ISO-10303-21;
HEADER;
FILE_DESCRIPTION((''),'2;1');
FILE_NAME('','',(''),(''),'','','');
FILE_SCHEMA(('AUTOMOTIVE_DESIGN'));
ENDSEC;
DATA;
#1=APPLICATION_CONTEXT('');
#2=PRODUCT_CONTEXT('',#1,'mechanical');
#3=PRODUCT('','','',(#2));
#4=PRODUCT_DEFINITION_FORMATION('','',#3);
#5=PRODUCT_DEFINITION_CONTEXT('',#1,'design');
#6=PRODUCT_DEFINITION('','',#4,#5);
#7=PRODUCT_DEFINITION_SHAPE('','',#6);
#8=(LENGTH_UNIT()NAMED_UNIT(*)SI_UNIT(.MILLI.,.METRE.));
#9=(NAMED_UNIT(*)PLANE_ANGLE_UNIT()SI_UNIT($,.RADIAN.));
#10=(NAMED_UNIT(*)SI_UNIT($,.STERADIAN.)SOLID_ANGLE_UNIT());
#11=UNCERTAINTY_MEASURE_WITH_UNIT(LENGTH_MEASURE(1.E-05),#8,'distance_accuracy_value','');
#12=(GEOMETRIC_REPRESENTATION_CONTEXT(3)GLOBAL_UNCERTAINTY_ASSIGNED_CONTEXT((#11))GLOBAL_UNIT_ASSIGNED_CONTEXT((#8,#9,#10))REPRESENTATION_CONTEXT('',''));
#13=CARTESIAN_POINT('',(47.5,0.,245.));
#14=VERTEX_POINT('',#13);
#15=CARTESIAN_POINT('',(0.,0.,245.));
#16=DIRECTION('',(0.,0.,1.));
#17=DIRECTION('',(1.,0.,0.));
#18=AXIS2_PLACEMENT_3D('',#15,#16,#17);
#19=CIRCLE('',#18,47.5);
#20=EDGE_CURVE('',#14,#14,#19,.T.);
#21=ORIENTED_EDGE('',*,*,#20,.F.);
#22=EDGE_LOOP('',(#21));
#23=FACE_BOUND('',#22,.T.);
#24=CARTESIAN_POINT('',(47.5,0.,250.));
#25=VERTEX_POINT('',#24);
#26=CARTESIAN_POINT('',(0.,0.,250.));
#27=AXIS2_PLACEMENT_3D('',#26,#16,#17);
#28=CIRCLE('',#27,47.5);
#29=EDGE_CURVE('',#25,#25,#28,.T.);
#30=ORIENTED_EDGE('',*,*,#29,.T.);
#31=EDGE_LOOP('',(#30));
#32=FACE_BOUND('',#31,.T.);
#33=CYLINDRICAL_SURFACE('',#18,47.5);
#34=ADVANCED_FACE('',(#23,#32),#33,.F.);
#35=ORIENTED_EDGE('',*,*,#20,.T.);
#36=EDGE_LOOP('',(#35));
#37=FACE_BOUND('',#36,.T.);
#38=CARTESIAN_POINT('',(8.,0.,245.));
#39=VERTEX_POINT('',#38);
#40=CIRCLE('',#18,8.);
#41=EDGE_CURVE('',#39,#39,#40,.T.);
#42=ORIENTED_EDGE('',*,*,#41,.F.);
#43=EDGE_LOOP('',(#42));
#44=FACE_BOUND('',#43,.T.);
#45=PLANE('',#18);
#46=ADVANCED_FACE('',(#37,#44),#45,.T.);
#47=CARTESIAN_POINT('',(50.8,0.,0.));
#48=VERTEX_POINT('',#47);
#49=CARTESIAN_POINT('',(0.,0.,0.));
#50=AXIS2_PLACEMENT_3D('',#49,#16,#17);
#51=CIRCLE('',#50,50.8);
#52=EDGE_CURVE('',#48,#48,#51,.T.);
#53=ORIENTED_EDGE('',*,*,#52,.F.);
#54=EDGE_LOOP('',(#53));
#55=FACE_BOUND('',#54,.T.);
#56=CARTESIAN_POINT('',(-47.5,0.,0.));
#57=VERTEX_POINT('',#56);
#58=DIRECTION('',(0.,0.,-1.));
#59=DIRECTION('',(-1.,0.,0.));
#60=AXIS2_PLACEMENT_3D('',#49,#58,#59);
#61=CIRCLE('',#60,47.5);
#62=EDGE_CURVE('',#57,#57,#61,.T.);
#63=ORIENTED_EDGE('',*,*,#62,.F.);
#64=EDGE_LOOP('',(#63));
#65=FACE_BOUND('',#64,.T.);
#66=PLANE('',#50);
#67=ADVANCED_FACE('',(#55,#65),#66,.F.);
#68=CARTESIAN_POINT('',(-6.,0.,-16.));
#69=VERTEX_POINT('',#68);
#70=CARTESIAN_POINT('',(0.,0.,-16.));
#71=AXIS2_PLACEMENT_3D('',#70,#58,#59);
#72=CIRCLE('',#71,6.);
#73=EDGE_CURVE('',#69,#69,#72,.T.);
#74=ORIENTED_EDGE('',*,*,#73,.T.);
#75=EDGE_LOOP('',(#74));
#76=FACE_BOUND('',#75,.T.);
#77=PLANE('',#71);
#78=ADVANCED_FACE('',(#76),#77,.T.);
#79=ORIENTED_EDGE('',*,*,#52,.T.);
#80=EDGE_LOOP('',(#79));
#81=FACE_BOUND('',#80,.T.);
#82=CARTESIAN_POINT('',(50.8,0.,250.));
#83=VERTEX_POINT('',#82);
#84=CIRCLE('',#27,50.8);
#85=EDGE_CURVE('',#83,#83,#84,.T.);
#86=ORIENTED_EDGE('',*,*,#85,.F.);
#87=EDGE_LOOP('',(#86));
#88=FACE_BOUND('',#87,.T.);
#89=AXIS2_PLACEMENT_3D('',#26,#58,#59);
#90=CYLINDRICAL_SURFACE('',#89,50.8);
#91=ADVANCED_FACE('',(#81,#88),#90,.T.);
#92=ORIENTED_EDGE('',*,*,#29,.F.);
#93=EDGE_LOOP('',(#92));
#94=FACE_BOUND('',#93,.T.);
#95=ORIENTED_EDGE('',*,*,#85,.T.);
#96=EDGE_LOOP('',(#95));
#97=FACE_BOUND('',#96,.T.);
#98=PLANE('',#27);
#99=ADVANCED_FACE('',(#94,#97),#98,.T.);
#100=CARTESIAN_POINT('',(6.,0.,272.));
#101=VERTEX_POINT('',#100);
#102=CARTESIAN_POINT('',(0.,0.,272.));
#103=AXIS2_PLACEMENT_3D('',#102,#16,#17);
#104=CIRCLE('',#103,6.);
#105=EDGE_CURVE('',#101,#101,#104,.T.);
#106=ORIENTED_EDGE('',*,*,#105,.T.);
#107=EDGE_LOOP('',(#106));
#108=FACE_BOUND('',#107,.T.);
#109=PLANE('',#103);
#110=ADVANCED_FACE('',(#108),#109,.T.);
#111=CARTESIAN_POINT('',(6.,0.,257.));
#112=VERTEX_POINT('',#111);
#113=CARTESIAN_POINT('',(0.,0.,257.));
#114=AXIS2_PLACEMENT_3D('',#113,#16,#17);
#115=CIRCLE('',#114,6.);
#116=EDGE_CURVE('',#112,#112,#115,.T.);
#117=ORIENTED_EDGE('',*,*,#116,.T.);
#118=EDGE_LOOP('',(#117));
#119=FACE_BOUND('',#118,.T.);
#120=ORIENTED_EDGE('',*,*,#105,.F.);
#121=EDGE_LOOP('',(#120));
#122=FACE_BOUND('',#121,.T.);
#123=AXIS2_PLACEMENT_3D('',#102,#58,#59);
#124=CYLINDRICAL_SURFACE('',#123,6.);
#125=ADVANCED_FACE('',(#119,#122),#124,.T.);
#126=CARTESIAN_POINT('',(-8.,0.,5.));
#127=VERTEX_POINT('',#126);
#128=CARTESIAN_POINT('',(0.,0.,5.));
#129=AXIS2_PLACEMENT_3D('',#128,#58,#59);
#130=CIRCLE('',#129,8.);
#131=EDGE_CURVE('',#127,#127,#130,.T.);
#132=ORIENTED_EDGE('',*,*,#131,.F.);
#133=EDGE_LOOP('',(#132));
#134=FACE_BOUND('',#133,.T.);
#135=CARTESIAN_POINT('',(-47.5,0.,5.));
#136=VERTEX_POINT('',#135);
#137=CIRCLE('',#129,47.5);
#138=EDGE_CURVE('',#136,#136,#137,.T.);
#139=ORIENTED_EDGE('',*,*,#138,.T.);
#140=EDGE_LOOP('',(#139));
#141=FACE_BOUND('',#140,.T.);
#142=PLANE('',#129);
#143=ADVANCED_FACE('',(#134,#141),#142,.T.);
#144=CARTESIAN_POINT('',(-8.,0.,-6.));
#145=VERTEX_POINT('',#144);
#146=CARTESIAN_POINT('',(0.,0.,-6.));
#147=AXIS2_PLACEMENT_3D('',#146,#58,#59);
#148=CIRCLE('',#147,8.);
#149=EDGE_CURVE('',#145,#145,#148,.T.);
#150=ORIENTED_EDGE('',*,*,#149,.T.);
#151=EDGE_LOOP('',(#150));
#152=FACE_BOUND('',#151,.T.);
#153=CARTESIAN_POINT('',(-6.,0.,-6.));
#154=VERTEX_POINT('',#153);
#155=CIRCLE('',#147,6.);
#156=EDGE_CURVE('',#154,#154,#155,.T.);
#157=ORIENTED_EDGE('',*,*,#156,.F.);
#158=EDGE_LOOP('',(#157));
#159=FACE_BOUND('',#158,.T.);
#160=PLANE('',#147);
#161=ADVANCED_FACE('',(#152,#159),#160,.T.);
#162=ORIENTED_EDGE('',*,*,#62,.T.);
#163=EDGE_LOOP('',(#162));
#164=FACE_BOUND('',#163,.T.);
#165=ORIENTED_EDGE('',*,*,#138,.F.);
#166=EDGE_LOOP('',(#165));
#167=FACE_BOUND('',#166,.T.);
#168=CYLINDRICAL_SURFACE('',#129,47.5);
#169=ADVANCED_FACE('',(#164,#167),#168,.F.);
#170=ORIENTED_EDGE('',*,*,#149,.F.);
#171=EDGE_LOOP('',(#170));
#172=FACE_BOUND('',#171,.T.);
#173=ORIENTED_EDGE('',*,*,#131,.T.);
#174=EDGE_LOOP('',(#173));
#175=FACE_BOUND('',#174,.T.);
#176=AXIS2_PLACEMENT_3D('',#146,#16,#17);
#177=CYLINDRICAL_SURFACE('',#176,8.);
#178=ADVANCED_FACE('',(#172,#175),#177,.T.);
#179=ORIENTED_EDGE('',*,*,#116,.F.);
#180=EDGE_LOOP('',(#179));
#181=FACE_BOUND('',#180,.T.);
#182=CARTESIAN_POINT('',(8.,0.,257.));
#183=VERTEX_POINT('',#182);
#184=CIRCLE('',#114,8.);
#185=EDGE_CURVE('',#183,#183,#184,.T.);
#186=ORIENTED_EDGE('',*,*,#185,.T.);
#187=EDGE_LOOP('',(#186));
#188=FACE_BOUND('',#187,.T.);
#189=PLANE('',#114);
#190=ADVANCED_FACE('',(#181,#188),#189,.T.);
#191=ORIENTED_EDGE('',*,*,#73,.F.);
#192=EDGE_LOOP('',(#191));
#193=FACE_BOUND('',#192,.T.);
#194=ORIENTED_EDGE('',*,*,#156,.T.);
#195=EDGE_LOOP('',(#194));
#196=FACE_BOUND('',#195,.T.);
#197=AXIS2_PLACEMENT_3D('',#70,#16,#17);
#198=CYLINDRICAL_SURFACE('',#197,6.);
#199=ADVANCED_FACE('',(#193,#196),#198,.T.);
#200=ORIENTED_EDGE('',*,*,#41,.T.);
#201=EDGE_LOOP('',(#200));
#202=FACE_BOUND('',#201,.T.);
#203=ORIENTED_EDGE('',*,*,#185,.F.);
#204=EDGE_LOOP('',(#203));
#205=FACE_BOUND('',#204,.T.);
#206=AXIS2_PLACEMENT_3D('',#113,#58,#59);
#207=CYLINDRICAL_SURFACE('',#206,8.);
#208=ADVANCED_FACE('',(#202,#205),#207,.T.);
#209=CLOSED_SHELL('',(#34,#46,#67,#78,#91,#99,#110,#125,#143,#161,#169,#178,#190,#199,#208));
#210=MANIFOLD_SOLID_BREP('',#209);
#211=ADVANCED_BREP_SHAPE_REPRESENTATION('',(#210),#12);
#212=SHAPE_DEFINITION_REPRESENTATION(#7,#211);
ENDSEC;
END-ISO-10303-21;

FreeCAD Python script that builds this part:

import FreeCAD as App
import Part
import Sketcher
Q = App.Units.Quantity

doc = App.newDocument("Part")
body = doc.addObject("PartDesign::Body", "Body")

# Sketch on XY plane
sketch1 = doc.addObject("Sketcher::SketchObject", "Sketch")
body.addObject(sketch1)
sketch1.AttachmentSupport = (doc.XY_Plane, [""])
sketch1.MapMode = "FlatFace"
sketch1.addGeometry(Part.Circle(App.Vector(0, 0, 0), App.Vector(0, 0, 1), 51), False)
sketch1.addConstraint(Sketcher.Constraint("Coincident", 0, 3, -1, 1))
sketch1.addConstraint(Sketcher.Constraint("Diameter", 0, Q("101.6 mm")))
pad1 = doc.addObject("PartDesign::Pad", "Pad")
body.addObject(pad1)
pad1.Profile = sketch1
pad1.Length = 250

# Sketch on XY plane
sketch2 = doc.addObject("Sketcher::SketchObject", "Sketch001")
body.addObject(sketch2)
sketch2.AttachmentSupport = (doc.XY_Plane, [""])
sketch2.MapMode = "FlatFace"
sketch2.AttachmentOffset = App.Placement(App.Vector(0, 0, 250), App.Rotation())
sketch2.addGeometry(Part.Circle(App.Vector(0, 0, 0), App.Vector(0, 0, 1), 48), False)
sketch2.addConstraint(Sketcher.Constraint("Coincident", 0, 3, -1, 1))
sketch2.addConstraint(Sketcher.Constraint("Diameter", 0, Q("95 mm")))
pocket1 = doc.addObject("PartDesign::Pocket", "Pocket")
body.addObject(pocket1)
pocket1.Profile = sketch2
pocket1.Length = 5

# Sketch on XY plane
sketch3 = doc.addObject("Sketcher::SketchObject", "Sketch002")
body.addObject(sketch3)
sketch3.AttachmentSupport = (doc.XY_Plane, [""])
sketch3.MapMode = "FlatFace"
sketch3.AttachmentOffset = App.Placement(App.Vector(0, 0, 5), App.Rotation())
sketch3.addGeometry(Part.Circle(App.Vector(0, 0, 0), App.Vector(0, 0, 1), 48), False)
sketch3.addConstraint(Sketcher.Constraint("Coincident", 0, 3, -1, 1))
sketch3.addConstraint(Sketcher.Constraint("Diameter", 0, Q("95 mm")))
pocket2 = doc.addObject("PartDesign::Pocket", "Pocket001")
body.addObject(pocket2)
pocket2.Profile = sketch3
pocket2.Length = 5

# Sketch on XY plane
sketch4 = doc.addObject("Sketcher::SketchObject", "Sketch003")
body.addObject(sketch4)
sketch4.AttachmentSupport = (doc.XY_Plane, [""])
sketch4.MapMode = "FlatFace"
sketch4.AttachmentOffset = App.Placement(App.Vector(0, 0, 5), App.Rotation())
sketch4.addGeometry(Part.Circle(App.Vector(0, 0, 0), App.Vector(0, 0, 1), 8), False)
sketch4.addConstraint(Sketcher.Constraint("Coincident", 0, 3, -1, 1))
sketch4.addConstraint(Sketcher.Constraint("Diameter", 0, Q("16 mm")))
pad2 = doc.addObject("PartDesign::Pad", "Pad001")
body.addObject(pad2)
pad2.Profile = sketch4
pad2.Length = 11
pad2.Reversed = True

# Sketch on XY plane
sketch5 = doc.addObject("Sketcher::SketchObject", "Sketch004")
body.addObject(sketch5)
sketch5.AttachmentSupport = (doc.XY_Plane, [""])
sketch5.MapMode = "FlatFace"
sketch5.AttachmentOffset = App.Placement(App.Vector(0, 0, 257), App.Rotation())
sketch5.addGeometry(Part.Circle(App.Vector(0, 0, 0), App.Vector(0, 0, 1), 8), False)
sketch5.addConstraint(Sketcher.Constraint("Coincident", 0, 3, -1, 1))
sketch5.addConstraint(Sketcher.Constraint("Diameter", 0, Q("16 mm")))
pad3 = doc.addObject("PartDesign::Pad", "Pad002")
body.addObject(pad3)
pad3.Profile = sketch5
pad3.Length = 12
pad3.Reversed = True

# Sketch on XY plane
sketch6 = doc.addObject("Sketcher::SketchObject", "Sketch005")
body.addObject(sketch6)
sketch6.AttachmentSupport = (doc.XY_Plane, [""])
sketch6.MapMode = "FlatFace"
sketch6.AttachmentOffset = App.Placement(App.Vector(0, 0, -6), App.Rotation())
sketch6.addGeometry(Part.Circle(App.Vector(0, 0, 0), App.Vector(0, 0, 1), 6), False)
sketch6.addConstraint(Sketcher.Constraint("Coincident", 0, 3, -1, 1))
sketch6.addConstraint(Sketcher.Constraint("Diameter", 0, Q("12 mm")))
pad4 = doc.addObject("PartDesign::Pad", "Pad003")
body.addObject(pad4)
pad4.Profile = sketch6
pad4.Length = 10
pad4.Reversed = True

# Sketch on XY plane
sketch7 = doc.addObject("Sketcher::SketchObject", "Sketch006")
body.addObject(sketch7)
sketch7.AttachmentSupport = (doc.XY_Plane, [""])
sketch7.MapMode = "FlatFace"
sketch7.AttachmentOffset = App.Placement(App.Vector(0, 0, 272), App.Rotation())
sketch7.addGeometry(Part.Circle(App.Vector(0, 0, 0), App.Vector(0, 0, 1), 6), False)
sketch7.addConstraint(Sketcher.Constraint("Coincident", 0, 3, -1, 1))
sketch7.addConstraint(Sketcher.Constraint("Diameter", 0, Q("12 mm")))
pad5 = doc.addObject("PartDesign::Pad", "Pad004")
body.addObject(pad5)
pad5.Profile = sketch7
pad5.Length = 15
pad5.Reversed = True

doc.recompute()
